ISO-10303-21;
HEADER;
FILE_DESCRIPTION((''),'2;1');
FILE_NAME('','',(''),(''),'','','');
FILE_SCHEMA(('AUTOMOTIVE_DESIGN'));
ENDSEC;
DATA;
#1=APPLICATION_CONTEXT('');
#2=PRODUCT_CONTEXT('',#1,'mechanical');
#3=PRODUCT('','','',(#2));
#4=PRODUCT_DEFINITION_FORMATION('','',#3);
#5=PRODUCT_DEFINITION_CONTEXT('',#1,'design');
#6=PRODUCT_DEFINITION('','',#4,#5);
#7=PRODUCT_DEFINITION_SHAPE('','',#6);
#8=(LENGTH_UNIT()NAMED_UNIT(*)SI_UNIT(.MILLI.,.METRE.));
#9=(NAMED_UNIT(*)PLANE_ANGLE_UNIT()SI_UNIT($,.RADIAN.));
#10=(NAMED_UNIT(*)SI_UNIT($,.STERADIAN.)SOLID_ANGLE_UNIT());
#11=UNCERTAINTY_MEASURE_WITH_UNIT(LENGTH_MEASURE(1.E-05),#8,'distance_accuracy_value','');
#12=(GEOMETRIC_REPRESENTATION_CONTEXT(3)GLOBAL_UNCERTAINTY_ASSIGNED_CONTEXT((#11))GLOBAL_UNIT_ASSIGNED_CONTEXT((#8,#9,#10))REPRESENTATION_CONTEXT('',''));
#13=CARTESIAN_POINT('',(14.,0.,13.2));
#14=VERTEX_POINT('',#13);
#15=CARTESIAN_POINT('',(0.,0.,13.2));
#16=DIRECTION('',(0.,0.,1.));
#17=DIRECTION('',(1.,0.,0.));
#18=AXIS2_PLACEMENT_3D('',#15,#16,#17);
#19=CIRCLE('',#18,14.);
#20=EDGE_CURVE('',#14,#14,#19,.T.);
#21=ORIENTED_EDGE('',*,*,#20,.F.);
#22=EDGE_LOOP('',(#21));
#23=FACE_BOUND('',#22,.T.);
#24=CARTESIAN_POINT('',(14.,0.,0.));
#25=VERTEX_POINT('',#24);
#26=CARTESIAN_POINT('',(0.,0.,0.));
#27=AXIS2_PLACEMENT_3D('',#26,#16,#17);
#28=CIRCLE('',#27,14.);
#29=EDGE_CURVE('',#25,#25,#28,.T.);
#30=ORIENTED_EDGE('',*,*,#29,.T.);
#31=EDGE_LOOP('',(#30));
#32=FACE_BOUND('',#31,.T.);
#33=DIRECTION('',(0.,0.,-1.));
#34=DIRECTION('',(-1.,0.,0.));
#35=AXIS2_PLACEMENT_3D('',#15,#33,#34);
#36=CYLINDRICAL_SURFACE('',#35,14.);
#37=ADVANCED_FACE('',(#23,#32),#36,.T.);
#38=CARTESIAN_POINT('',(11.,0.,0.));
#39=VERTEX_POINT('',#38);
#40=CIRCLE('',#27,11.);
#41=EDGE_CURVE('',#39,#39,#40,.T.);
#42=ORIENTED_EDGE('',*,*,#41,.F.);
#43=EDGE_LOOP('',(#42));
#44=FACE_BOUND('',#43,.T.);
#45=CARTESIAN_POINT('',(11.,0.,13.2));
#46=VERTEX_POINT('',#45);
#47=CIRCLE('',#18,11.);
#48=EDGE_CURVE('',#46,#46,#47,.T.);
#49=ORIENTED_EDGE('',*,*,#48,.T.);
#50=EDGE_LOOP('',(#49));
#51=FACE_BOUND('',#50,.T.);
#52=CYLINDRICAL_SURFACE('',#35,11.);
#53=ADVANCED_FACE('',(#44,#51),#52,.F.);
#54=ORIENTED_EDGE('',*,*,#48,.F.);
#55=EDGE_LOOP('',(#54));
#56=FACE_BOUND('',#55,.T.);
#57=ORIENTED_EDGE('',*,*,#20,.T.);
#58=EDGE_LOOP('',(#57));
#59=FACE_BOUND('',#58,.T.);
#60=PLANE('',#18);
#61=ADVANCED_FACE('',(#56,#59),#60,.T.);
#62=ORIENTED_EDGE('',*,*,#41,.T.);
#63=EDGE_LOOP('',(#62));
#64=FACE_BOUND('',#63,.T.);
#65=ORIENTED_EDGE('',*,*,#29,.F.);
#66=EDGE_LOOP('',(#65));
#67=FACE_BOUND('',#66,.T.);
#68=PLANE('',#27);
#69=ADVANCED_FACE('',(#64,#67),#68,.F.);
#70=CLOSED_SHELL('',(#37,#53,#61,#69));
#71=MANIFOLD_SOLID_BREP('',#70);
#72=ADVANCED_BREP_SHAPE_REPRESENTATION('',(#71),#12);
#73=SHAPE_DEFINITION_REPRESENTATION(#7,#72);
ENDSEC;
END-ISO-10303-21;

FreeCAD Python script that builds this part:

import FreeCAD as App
import Part
import Sketcher

doc = App.newDocument("Part")
params = doc.addObject("Spreadsheet::Sheet", "Params")
for row, (alias, value) in enumerate([
    ("sketch1_diameter", "28 mm"),
    ("sketch1_diameter2", "22 mm"),
    ("pad1_length", "13.2 mm"),
], start=1):
    params.set(f"A{row}", alias)
    params.set(f"B{row}", "=" + value)
    params.setAlias(f"B{row}", alias)

body = doc.addObject("PartDesign::Body", "Body")

# Sketch on XY plane
sketch1 = body.newObject("Sketcher::SketchObject", "Sketch")
sketch1.AttachmentSupport = (doc.getObject("XY_Plane"), [""])
sketch1.MapMode = "FlatFace"
sketch1.addGeometry(Part.Circle(App.Vector(0, 0, 0), App.Vector(0, 0, 1), 14), False)
sketch1.addGeometry(Part.Circle(App.Vector(0, 0, 0), App.Vector(0, 0, 1), 11), False)
sketch1.addConstraint(Sketcher.Constraint("Coincident", 0, 3, -1, 1))
sketch1.addConstraint(Sketcher.Constraint("Coincident", 1, 3, -1, 1))
sketch1.addConstraint(Sketcher.Constraint("Diameter", 0, 28.0))
sketch1.addConstraint(Sketcher.Constraint("Diameter", 1, 22.0))
sketch1.setExpression("Constraints[2]", "Params.sketch1_diameter")
sketch1.setExpression("Constraints[3]", "Params.sketch1_diameter2")
pad1 = body.newObject("PartDesign::Pad", "Pad")
pad1.Profile = sketch1
pad1.setExpression("Length", "Params.pad1_length")

doc.recompute()
